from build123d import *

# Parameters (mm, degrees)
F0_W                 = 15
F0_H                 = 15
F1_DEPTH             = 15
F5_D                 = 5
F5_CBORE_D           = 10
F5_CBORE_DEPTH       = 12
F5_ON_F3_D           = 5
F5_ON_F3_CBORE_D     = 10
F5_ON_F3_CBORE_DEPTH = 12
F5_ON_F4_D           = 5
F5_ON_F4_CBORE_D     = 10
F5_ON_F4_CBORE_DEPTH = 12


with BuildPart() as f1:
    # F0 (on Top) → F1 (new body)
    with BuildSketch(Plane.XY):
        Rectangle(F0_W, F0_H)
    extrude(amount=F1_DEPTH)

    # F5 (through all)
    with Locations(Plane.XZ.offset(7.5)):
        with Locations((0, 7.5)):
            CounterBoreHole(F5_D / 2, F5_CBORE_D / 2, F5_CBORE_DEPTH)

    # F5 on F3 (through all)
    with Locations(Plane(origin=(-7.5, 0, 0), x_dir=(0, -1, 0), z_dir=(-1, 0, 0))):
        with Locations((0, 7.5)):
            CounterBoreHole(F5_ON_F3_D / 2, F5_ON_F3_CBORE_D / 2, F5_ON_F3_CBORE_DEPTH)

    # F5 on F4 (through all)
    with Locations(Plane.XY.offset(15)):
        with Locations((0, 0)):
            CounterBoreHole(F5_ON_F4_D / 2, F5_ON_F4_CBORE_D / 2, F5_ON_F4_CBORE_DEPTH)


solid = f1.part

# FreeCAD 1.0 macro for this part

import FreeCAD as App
import Part
import Sketcher


def add_polygon(sketch, points):
    """Adds a closed chain of lines whose ends are joined by coincident constraints."""
    first, n = sketch.GeometryCount, len(points)
    for a, b in zip(points, points[1:] + points[:1]):
        sketch.addGeometry(Part.LineSegment(App.Vector(*a, 0), App.Vector(*b, 0)), False)
    for i in range(n):
        sketch.addConstraint(Sketcher.Constraint("Coincident", first + i, 2, first + (i + 1) % n, 1))

doc = App.newDocument("Part")
body = doc.addObject("PartDesign::Body", "Body")

sketch1 = body.newObject("Sketcher::SketchObject", "Sketch")
sketch1.AttachmentSupport = (doc.getObject("XY_Plane"), [""])
sketch1.MapMode = "FlatFace"
add_polygon(sketch1, [(-7.5, 7.5), (-7.5, -7.5), (7.5, -7.5), (7.5, 7.5)])
sketch1.addConstraint([
    Sketcher.Constraint("Vertical", 0),
    Sketcher.Constraint("Horizontal", 1),
    Sketcher.Constraint("Vertical", 2),
    Sketcher.Constraint("Horizontal", 3),
    Sketcher.Constraint("Symmetric", 0, 2, 2, 2, -1, 1),
    Sketcher.Constraint("Equal", 3, 0),
    Sketcher.Constraint("DistanceX", 1, 1, 1, 2, 15.0),
])
pad1 = body.newObject("PartDesign::Pad", "Pad")
pad1.Profile = sketch1
pad1.Length = 15

sketch2 = body.newObject("Sketcher::SketchObject", "Sketch001")
sketch2.AttachmentSupport = (doc.getObject("XZ_Plane"), [""])
sketch2.MapMode = "FlatFace"
sketch2.AttachmentOffset = App.Placement(App.Vector(0, 0, 7.5), App.Rotation())
sketch2.addGeometry(Part.Circle(App.Vector(0, 7.5, 0), App.Vector(0, 0, 1), 2.5), False)
sketch2.addConstraint([
    Sketcher.Constraint("PointOnObject", 0, 3, -2),
    Sketcher.Constraint("Diameter", 0, 5.0),
    Sketcher.Constraint("DistanceY", -1, 1, 0, 3, 7.5),
])
doc.recompute()
hole = body.newObject("PartDesign::Hole", "Hole")
hole.Profile = sketch2
hole.ThreadType = "None"
hole.Diameter = 5
hole.DepthType = "ThroughAll"
hole.HoleCutType = "Counterbore"
hole.HoleCutDiameter = 10
hole.HoleCutDepth = 12

sketch3 = body.newObject("Sketcher::SketchObject", "Sketch002")
sketch3.AttachmentSupport = (doc.getObject("YZ_Plane"), [""])
sketch3.MapMode = "FlatFace"
sketch3.AttachmentOffset = App.Placement(App.Vector(0, 0, -7.5), App.Rotation())
sketch3.addGeometry(Part.Circle(App.Vector(0, 7.5, 0), App.Vector(0, 0, 1), 2.5), False)
sketch3.addConstraint([
    Sketcher.Constraint("PointOnObject", 0, 3, -2),
    Sketcher.Constraint("Diameter", 0, 5.0),
    Sketcher.Constraint("DistanceY", -1, 1, 0, 3, 7.5),
])
doc.recompute()
hole2 = body.newObject("PartDesign::Hole", "Hole001")
hole2.Profile = sketch3
hole2.ThreadType = "None"
hole2.Diameter = 5
hole2.DepthType = "ThroughAll"
hole2.HoleCutType = "Counterbore"
hole2.HoleCutDiameter = 10
hole2.HoleCutDepth = 12
hole2.Reversed = True

sketch4 = body.newObject("Sketcher::SketchObject", "Sketch003")
sketch4.AttachmentSupport = (doc.getObject("XY_Plane"), [""])
sketch4.MapMode = "FlatFace"
sketch4.AttachmentOffset = App.Placement(App.Vector(0, 0, 15), App.Rotation())
sketch4.addGeometry(Part.Circle(App.Vector(0, 0, 0), App.Vector(0, 0, 1), 2.5), False)
sketch4.addConstraint([
    Sketcher.Constraint("Coincident", 0, 3, -1, 1),
    Sketcher.Constraint("Diameter", 0, 5.0),
])
doc.recompute()
hole3 = body.newObject("PartDesign::Hole", "Hole002")
hole3.Profile = sketch4
hole3.ThreadType = "None"
hole3.Diameter = 5
hole3.DepthType = "ThroughAll"
hole3.HoleCutType = "Counterbore"
hole3.HoleCutDiameter = 10
hole3.HoleCutDepth = 12

doc.recompute()
